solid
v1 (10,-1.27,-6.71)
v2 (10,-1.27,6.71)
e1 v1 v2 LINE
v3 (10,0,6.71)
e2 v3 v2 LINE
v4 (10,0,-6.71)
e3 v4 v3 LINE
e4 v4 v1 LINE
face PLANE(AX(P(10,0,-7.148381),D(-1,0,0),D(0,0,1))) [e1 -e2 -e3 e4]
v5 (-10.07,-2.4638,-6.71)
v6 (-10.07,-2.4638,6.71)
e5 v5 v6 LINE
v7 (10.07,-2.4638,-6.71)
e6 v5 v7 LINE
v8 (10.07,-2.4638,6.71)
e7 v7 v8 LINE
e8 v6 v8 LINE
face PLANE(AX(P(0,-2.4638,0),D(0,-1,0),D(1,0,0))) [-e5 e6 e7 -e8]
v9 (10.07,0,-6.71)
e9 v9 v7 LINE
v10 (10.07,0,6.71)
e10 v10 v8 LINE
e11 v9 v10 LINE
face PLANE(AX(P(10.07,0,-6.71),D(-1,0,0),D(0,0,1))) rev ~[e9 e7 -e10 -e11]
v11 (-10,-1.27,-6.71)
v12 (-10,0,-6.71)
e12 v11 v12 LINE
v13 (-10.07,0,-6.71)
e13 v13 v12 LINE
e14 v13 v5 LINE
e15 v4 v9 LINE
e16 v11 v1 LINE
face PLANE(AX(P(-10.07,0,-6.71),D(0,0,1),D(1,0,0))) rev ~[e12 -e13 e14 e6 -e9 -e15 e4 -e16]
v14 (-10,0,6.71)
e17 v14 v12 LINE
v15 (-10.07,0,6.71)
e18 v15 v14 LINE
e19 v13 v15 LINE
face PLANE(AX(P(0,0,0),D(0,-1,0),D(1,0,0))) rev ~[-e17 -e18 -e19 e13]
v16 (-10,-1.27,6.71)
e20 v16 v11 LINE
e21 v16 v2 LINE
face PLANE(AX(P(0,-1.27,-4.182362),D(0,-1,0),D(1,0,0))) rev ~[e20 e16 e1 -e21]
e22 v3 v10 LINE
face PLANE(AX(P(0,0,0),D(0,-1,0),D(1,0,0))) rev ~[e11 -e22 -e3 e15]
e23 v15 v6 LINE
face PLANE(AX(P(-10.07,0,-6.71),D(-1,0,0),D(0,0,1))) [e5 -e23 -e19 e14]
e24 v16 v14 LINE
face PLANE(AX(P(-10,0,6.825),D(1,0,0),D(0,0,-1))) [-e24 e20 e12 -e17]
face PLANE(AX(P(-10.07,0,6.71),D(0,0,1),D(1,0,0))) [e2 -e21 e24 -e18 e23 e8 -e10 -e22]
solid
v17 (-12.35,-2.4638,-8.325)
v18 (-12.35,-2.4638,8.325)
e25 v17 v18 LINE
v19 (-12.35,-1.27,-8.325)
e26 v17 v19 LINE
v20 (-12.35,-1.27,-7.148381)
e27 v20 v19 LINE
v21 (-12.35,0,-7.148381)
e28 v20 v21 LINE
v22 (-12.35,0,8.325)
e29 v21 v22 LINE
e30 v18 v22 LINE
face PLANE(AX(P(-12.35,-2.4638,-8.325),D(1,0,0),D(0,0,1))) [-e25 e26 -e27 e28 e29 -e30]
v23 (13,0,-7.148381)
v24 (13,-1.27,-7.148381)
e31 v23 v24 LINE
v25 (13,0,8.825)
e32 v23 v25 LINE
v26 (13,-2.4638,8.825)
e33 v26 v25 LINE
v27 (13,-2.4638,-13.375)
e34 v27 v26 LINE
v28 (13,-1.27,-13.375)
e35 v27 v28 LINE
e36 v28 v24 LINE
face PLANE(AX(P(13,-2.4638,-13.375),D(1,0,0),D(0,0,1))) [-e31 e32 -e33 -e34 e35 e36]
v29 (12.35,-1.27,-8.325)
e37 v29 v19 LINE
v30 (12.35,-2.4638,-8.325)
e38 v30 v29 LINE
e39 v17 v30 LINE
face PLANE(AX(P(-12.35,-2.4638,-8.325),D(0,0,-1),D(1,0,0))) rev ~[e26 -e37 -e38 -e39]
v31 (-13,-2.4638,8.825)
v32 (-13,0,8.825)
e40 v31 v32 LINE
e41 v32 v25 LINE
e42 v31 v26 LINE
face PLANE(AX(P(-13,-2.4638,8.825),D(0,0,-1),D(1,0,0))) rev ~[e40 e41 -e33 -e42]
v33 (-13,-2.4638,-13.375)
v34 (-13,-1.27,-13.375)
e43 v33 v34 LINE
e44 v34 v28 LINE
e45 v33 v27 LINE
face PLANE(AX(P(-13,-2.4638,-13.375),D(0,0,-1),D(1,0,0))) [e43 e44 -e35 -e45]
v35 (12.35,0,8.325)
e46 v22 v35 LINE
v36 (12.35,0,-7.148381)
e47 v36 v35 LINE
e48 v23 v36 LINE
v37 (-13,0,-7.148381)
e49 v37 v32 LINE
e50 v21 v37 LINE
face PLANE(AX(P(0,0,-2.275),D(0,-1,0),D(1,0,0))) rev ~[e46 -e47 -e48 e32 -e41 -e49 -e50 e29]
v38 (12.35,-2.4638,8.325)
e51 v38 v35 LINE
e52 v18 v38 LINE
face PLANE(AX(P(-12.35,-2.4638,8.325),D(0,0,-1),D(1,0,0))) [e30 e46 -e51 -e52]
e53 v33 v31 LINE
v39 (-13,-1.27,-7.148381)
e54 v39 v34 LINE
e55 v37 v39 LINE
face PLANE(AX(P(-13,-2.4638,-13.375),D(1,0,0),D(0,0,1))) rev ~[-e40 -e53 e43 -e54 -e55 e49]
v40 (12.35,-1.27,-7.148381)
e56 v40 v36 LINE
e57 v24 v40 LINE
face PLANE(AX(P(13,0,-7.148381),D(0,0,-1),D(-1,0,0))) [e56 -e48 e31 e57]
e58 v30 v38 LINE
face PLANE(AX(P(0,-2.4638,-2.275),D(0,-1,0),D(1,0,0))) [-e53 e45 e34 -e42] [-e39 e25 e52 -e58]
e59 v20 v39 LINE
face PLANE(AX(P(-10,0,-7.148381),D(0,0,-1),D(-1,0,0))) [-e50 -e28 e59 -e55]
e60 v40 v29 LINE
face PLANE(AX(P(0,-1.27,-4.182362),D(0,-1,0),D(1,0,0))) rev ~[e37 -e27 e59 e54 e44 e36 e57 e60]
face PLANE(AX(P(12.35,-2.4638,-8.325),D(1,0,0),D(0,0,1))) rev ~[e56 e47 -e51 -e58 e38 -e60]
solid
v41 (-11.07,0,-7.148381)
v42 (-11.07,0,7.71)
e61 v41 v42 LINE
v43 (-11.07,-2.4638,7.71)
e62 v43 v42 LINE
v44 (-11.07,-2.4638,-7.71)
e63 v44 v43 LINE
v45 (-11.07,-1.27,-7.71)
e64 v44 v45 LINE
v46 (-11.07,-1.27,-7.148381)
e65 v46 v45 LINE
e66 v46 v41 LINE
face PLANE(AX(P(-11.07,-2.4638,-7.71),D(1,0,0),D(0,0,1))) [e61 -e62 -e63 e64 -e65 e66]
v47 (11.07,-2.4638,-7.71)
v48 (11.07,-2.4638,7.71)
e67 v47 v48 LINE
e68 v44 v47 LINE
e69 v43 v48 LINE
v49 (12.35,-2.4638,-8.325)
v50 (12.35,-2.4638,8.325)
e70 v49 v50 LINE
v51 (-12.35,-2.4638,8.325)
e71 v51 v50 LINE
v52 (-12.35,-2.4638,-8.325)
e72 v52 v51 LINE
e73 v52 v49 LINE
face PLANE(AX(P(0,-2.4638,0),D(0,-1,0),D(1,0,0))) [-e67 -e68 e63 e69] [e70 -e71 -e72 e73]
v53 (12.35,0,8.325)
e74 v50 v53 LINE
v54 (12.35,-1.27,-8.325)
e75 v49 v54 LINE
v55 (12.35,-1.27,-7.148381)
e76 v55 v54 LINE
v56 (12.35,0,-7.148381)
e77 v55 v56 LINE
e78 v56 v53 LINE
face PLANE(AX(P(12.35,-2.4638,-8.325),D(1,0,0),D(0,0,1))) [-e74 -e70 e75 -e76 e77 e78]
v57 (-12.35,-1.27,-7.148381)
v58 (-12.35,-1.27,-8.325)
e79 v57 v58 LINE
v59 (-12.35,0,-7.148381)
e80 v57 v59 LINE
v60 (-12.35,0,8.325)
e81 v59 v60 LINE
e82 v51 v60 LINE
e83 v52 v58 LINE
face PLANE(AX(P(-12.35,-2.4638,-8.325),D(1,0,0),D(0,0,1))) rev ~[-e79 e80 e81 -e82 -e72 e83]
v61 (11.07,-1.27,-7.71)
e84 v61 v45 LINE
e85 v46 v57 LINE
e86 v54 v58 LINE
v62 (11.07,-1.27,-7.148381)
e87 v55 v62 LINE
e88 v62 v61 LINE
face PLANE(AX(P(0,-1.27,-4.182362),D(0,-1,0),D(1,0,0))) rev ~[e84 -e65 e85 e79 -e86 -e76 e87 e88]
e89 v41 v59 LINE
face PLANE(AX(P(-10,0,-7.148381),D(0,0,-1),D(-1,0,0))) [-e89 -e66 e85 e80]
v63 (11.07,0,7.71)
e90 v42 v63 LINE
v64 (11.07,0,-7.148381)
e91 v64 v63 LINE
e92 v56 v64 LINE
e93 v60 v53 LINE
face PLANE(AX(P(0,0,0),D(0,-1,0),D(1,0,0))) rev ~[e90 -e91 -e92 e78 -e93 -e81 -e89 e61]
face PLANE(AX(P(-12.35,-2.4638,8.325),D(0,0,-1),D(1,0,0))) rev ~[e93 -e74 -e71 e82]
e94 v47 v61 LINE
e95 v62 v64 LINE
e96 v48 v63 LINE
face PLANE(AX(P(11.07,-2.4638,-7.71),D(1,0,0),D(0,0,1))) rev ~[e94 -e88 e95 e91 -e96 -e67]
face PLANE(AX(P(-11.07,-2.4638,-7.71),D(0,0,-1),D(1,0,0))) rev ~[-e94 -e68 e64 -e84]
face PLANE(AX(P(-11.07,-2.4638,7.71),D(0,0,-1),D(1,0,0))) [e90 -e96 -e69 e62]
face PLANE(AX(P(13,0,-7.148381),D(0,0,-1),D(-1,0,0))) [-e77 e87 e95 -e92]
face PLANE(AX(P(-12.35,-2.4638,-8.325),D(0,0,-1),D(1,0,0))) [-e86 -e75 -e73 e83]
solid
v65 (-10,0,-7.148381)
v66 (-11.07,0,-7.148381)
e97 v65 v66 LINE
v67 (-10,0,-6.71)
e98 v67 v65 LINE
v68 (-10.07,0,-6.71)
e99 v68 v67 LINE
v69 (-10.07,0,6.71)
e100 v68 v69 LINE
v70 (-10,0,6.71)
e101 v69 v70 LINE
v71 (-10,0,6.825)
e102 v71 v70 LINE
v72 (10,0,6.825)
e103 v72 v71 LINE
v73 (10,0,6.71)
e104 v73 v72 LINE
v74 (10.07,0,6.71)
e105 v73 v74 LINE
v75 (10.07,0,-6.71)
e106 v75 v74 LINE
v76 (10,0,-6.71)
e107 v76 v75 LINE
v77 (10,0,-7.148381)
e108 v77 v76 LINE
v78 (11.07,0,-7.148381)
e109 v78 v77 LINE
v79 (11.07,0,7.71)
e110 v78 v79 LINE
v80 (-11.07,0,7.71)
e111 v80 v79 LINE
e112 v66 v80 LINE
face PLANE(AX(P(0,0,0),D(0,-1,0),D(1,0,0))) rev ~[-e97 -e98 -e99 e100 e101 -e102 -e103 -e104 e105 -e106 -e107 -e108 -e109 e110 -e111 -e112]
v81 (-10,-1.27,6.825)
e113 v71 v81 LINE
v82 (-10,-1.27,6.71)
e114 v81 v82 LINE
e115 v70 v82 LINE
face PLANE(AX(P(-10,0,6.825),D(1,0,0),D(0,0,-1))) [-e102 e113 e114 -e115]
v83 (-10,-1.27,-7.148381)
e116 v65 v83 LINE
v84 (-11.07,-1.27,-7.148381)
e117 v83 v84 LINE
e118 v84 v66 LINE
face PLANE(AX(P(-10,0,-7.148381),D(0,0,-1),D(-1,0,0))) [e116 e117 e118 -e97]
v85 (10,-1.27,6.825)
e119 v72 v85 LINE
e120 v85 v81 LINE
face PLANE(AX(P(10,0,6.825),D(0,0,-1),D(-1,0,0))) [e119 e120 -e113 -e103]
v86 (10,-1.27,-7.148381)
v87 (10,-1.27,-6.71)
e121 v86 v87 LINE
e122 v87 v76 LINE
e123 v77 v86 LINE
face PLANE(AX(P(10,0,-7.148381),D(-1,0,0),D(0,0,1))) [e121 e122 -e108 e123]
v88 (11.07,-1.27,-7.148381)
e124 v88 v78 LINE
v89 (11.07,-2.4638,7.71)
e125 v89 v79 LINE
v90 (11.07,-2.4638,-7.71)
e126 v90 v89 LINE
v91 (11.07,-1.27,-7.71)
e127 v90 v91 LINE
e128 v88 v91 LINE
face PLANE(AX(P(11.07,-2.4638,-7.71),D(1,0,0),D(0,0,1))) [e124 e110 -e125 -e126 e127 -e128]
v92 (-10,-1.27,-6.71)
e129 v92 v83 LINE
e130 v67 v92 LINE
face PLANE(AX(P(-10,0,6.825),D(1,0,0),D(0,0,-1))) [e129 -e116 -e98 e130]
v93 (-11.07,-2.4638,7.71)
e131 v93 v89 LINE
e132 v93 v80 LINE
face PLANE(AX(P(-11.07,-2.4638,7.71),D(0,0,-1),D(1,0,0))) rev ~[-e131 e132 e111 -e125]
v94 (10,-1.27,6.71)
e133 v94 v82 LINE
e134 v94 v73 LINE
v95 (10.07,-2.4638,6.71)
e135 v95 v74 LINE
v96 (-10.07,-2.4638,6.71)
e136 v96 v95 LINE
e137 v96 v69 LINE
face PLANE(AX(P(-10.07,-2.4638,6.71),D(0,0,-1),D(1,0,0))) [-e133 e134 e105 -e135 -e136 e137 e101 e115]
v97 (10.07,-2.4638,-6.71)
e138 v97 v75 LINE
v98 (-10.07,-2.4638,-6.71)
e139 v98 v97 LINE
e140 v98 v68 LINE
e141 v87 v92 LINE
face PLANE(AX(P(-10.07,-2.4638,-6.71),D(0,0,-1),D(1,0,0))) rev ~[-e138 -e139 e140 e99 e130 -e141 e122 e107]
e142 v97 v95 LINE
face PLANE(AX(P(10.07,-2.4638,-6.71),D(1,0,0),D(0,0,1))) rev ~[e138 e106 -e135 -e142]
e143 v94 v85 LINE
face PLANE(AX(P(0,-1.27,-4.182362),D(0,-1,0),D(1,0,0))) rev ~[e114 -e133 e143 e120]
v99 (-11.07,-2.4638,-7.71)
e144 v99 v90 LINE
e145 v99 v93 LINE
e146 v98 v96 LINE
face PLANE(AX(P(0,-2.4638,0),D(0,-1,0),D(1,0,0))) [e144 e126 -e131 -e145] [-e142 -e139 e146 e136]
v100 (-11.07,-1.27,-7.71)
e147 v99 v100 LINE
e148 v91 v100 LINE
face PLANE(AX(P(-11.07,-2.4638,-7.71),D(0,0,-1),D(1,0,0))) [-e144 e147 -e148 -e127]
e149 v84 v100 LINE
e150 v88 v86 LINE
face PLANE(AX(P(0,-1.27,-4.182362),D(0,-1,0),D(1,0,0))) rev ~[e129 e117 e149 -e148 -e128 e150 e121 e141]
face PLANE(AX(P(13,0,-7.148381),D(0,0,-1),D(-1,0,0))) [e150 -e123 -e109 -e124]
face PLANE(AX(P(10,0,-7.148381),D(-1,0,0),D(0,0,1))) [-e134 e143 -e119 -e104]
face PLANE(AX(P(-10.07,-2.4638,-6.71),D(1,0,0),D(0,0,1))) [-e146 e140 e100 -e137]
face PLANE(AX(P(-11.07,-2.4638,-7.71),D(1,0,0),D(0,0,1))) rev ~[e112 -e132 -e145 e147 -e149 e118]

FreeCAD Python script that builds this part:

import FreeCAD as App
import Part
import Sketcher


def add_polygon(sketch, points):
    """Adds a closed chain of lines whose ends are joined by coincident constraints."""
    first, n = sketch.GeometryCount, len(points)
    for a, b in zip(points, points[1:] + points[:1]):
        sketch.addGeometry(Part.LineSegment(App.Vector(*a, 0), App.Vector(*b, 0)), False)
    for i in range(n):
        sketch.addConstraint(Sketcher.Constraint("Coincident", first + i, 2, first + (i + 1) % n, 1))

doc = App.newDocument("Part")
params = doc.addObject("Spreadsheet::Sheet", "Params")
for row, (alias, value) in enumerate([
    ("sketch1_width", "20.14 mm"),
    ("sketch1_height", "13.42 mm"),
    ("pad1_length", "2.4638 mm"),
    ("sketch2_width", "22.14 mm"),
    ("sketch2_height", "15.42 mm"),
    ("pad2_length", "2.4638 mm"),
    ("sketch3_width", "24.7 mm"),
    ("sketch3_width2", "22.14 mm"),
    ("sketch3_height", "16.65 mm"),
    ("sketch3_height2", "15.42 mm"),
    ("pad3_length", "2.4638 mm"),
    ("sketch4_width", "26 mm"),
    ("sketch4_width2", "24.7 mm"),
    ("sketch4_height", "22.2 mm"),
    ("sketch4_height2", "16.65 mm"),
    ("pad4_length", "2.4638 mm"),
    ("sketch5_width", "20 mm"),
    ("sketch5_width2", "3 mm"),
    ("pad5_length", "1.27 mm"),
], start=1):
    params.set(f"A{row}", alias)
    params.set(f"B{row}", "=" + value)
    params.setAlias(f"B{row}", alias)

body = doc.addObject("PartDesign::Body", "Body")

sketch1 = body.newObject("Sketcher::SketchObject", "Sketch")
sketch1.AttachmentSupport = (doc.getObject("XZ_Plane"), [""])
sketch1.MapMode = "FlatFace"
add_polygon(sketch1, [(-10, 7), (-10, -7), (10, -7), (10, 7)])
sketch1.addConstraint(Sketcher.Constraint("Vertical", 0))
sketch1.addConstraint(Sketcher.Constraint("Horizontal", 1))
sketch1.addConstraint(Sketcher.Constraint("Vertical", 2))
sketch1.addConstraint(Sketcher.Constraint("Horizontal", 3))
sketch1.addConstraint(Sketcher.Constraint("Symmetric", 0, 2, 2, 2, -1, 1))
sketch1.addConstraint(Sketcher.Constraint("DistanceX", 1, 1, 1, 2, 20.14))
sketch1.addConstraint(Sketcher.Constraint("DistanceY", 0, 2, 0, 1, 13.42))
sketch1.setExpression("Constraints[9]", "Params.sketch1_width")
sketch1.setExpression("Constraints[10]", "Params.sketch1_height")
pad1 = body.newObject("PartDesign::Pad", "Pad")
pad1.Profile = sketch1
pad1.setExpression("Length", "Params.pad1_length")
body2 = doc.addObject("PartDesign::Body", "Body001")

sketch2 = body2.newObject("Sketcher::SketchObject", "Sketch001")
sketch2.AttachmentSupport = (doc.getObject("XZ_Plane001"), [""])
sketch2.MapMode = "FlatFace"
sketch2.AttachmentOffset = App.Placement(App.Vector(0, 0, 2.4638), App.Rotation())
add_polygon(sketch2, [(-11, 8), (-11, -8), (11, -8), (11, 8)])
add_polygon(sketch2, [(10, -7), (-10, -7), (-10, 7), (10, 7)])
sketch2.addConstraint(Sketcher.Constraint("Vertical", 0))
sketch2.addConstraint(Sketcher.Constraint("Horizontal", 1))
sketch2.addConstraint(Sketcher.Constraint("Vertical", 2))
sketch2.addConstraint(Sketcher.Constraint("Horizontal", 3))
sketch2.addConstraint(Sketcher.Constraint("Horizontal", 4))
sketch2.addConstraint(Sketcher.Constraint("Vertical", 5))
sketch2.addConstraint(Sketcher.Constraint("Horizontal", 6))
sketch2.addConstraint(Sketcher.Constraint("Vertical", 7))
sketch2.addConstraint(Sketcher.Constraint("Symmetric", 0, 2, 2, 2, -1, 1))
sketch2.addConstraint(Sketcher.Constraint("Symmetric", 4, 2, 6, 2, -1, 1))
sketch2.addConstraint(Sketcher.Constraint("DistanceX", 0, 2, 4, 2, 1.0))
sketch2.addConstraint(Sketcher.Constraint("DistanceY", 0, 2, 4, 2, 1.0))
sketch2.addConstraint(Sketcher.Constraint("DistanceX", 1, 1, 1, 2, 22.14))
sketch2.addConstraint(Sketcher.Constraint("DistanceY", 0, 2, 0, 1, 15.42))
sketch2.setExpression("Constraints[20]", "Params.sketch2_width")
sketch2.setExpression("Constraints[21]", "Params.sketch2_height")
pad2 = body2.newObject("PartDesign::Pad", "Pad001")
pad2.Profile = sketch2
pad2.setExpression("Length", "Params.pad2_length")
pad2.Reversed = True
body3 = doc.addObject("PartDesign::Body", "Body002")

sketch3 = body3.newObject("Sketcher::SketchObject", "Sketch002")
sketch3.AttachmentSupport = (doc.getObject("XZ_Plane002"), [""])
sketch3.MapMode = "FlatFace"
sketch3.AttachmentOffset = App.Placement(App.Vector(0, 0, 2.4638), App.Rotation())
add_polygon(sketch3, [(-12, 8), (-12, -8), (12, -8), (12, 8)])
add_polygon(sketch3, [(11, -8), (-11, -8), (-11, 8), (11, 8)])
sketch3.addConstraint(Sketcher.Constraint("Vertical", 0))
sketch3.addConstraint(Sketcher.Constraint("Horizontal", 1))
sketch3.addConstraint(Sketcher.Constraint("Vertical", 2))
sketch3.addConstraint(Sketcher.Constraint("Horizontal", 3))
sketch3.addConstraint(Sketcher.Constraint("Horizontal", 4))
sketch3.addConstraint(Sketcher.Constraint("Vertical", 5))
sketch3.addConstraint(Sketcher.Constraint("Horizontal", 6))
sketch3.addConstraint(Sketcher.Constraint("Vertical", 7))
sketch3.addConstraint(Sketcher.Constraint("Symmetric", 0, 2, 2, 2, -1, 1))
sketch3.addConstraint(Sketcher.Constraint("Symmetric", 4, 2, 6, 2, -1, 1))
sketch3.addConstraint(Sketcher.Constraint("DistanceX", 1, 1, 1, 2, 24.7))
sketch3.addConstraint(Sketcher.Constraint("DistanceX", 4, 2, 4, 1, 22.14))
sketch3.addConstraint(Sketcher.Constraint("DistanceY", 0, 2, 0, 1, 16.65))
sketch3.addConstraint(Sketcher.Constraint("DistanceY", 5, 1, 5, 2, 15.42))
sketch3.setExpression("Constraints[18]", "Params.sketch3_width")
sketch3.setExpression("Constraints[19]", "Params.sketch3_width2")
sketch3.setExpression("Constraints[20]", "Params.sketch3_height")
sketch3.setExpression("Constraints[21]", "Params.sketch3_height2")
pad3 = body3.newObject("PartDesign::Pad", "Pad002")
pad3.Profile = sketch3
pad3.setExpression("Length", "Params.pad3_length")
pad3.Reversed = True
body4 = doc.addObject("PartDesign::Body", "Body003")

sketch4 = body4.newObject("Sketcher::SketchObject", "Sketch003")
sketch4.AttachmentSupport = (doc.getObject("XZ_Plane003"), [""])
sketch4.MapMode = "FlatFace"
sketch4.AttachmentOffset = App.Placement(App.Vector(0, 0, 2.4638), App.Rotation())
add_polygon(sketch4, [(-13, 9), (-13, -13), (13, -13), (13, 9)])
add_polygon(sketch4, [(12, -8), (-12, -8), (-12, 8), (12, 8)])
sketch4.addConstraint(Sketcher.Constraint("Vertical", 0))
sketch4.addConstraint(Sketcher.Constraint("Horizontal", 1))
sketch4.addConstraint(Sketcher.Constraint("Vertical", 2))
sketch4.addConstraint(Sketcher.Constraint("Horizontal", 3))
sketch4.addConstraint(Sketcher.Constraint("Horizontal", 4))
sketch4.addConstraint(Sketcher.Constraint("Vertical", 5))
sketch4.addConstraint(Sketcher.Constraint("Horizontal", 6))
sketch4.addConstraint(Sketcher.Constraint("Vertical", 7))
sketch4.addConstraint(Sketcher.Constraint("Symmetric", 4, 2, 6, 2, -1, 1))
sketch4.addConstraint(Sketcher.Constraint("DistanceX", 1, 1, 1, 2, 26.0))
sketch4.addConstraint(Sketcher.Constraint("DistanceX", 4, 2, 4, 1, 24.7))
sketch4.addConstraint(Sketcher.Constraint("DistanceY", 0, 2, 0, 1, 22.2))
sketch4.addConstraint(Sketcher.Constraint("DistanceX", 0, 2, -1, 1, 13.0))
sketch4.addConstraint(Sketcher.Constraint("DistanceY", 5, 1, 5, 2, 16.65))
sketch4.addConstraint(Sketcher.Constraint("DistanceY", 5, 2, 3, 2, 0.5))
sketch4.setExpression("Constraints[17]", "Params.sketch4_width")
sketch4.setExpression("Constraints[18]", "Params.sketch4_width2")
sketch4.setExpression("Constraints[19]", "Params.sketch4_height")
sketch4.setExpression("Constraints[21]", "Params.sketch4_height2")
pad4 = body4.newObject("PartDesign::Pad", "Pad003")
pad4.Profile = sketch4
pad4.setExpression("Length", "Params.pad4_length")
pad4.Reversed = True
body5 = doc.addObject("PartDesign::Body", "Body004")

sketch5 = body5.newObject("Sketcher::SketchObject", "Sketch004")
sketch5.AttachmentSupport = (doc.getObject("XZ_Plane004"), [""])
sketch5.MapMode = "FlatFace"
add_polygon(sketch5, [(10, 6.8), (-10, 6.8), (-10, -7.1), (-13, -7.1), (-13, -13.4), (13, -13.4), (13, -7.1), (10, -7.1)])
sketch5.addConstraint(Sketcher.Constraint("Horizontal", 0))
sketch5.addConstraint(Sketcher.Constraint("Vertical", 1))
sketch5.addConstraint(Sketcher.Constraint("Horizontal", 2))
sketch5.addConstraint(Sketcher.Constraint("Vertical", 3))
sketch5.addConstraint(Sketcher.Constraint("Horizontal", 4))
sketch5.addConstraint(Sketcher.Constraint("Vertical", 5))
sketch5.addConstraint(Sketcher.Constraint("Horizontal", 6))
sketch5.addConstraint(Sketcher.Constraint("Vertical", 7))
sketch5.addConstraint(Sketcher.Constraint("Symmetric", 2, 2, 5, 2, -2))
sketch5.addConstraint(Sketcher.Constraint("Equal", 2, 6))
sketch5.addConstraint(Sketcher.Constraint("DistanceX", 0, 2, 0, 1, 20.0))
sketch5.addConstraint(Sketcher.Constraint("DistanceX", 2, 2, 2, 1, 3.0))
sketch5.addConstraint(Sketcher.Constraint("DistanceY", 3, 2, 0, 2, 20.2))
sketch5.addConstraint(Sketcher.Constraint("DistanceY", -1, 1, 0, 2, 6.825))
sketch5.addConstraint(Sketcher.Constraint("DistanceY", 1, 2, 1, 1, 13.973381))
sketch5.setExpression("Constraints[18]", "Params.sketch5_width")
sketch5.setExpression("Constraints[19]", "Params.sketch5_width2")
pad5 = body5.newObject("PartDesign::Pad", "Pad004")
pad5.Profile = sketch5
pad5.setExpression("Length", "Params.pad5_length")
doc.recompute()

body6 = doc.addObject("PartDesign::Body", "Body005")
body6.BaseFeature = body5
boolean = body.newObject("PartDesign::Boolean", "Boolean")
boolean.Type = "Cut"
boolean.addObjects([body6])
doc.recompute()

body7 = doc.addObject("PartDesign::Body", "Body006")
body7.BaseFeature = body5
boolean2 = body2.newObject("PartDesign::Boolean", "Boolean001")
boolean2.Type = "Cut"
boolean2.addObjects([body7])
doc.recompute()

body8 = doc.addObject("PartDesign::Body", "Body007")
body8.BaseFeature = body5
boolean3 = body3.newObject("PartDesign::Boolean", "Boolean002")
boolean3.Type = "Cut"
boolean3.addObjects([body8])
doc.recompute()

boolean4 = body4.newObject("PartDesign::Boolean", "Boolean003")
boolean4.Type = "Cut"
boolean4.addObjects([body5])

doc.recompute()
